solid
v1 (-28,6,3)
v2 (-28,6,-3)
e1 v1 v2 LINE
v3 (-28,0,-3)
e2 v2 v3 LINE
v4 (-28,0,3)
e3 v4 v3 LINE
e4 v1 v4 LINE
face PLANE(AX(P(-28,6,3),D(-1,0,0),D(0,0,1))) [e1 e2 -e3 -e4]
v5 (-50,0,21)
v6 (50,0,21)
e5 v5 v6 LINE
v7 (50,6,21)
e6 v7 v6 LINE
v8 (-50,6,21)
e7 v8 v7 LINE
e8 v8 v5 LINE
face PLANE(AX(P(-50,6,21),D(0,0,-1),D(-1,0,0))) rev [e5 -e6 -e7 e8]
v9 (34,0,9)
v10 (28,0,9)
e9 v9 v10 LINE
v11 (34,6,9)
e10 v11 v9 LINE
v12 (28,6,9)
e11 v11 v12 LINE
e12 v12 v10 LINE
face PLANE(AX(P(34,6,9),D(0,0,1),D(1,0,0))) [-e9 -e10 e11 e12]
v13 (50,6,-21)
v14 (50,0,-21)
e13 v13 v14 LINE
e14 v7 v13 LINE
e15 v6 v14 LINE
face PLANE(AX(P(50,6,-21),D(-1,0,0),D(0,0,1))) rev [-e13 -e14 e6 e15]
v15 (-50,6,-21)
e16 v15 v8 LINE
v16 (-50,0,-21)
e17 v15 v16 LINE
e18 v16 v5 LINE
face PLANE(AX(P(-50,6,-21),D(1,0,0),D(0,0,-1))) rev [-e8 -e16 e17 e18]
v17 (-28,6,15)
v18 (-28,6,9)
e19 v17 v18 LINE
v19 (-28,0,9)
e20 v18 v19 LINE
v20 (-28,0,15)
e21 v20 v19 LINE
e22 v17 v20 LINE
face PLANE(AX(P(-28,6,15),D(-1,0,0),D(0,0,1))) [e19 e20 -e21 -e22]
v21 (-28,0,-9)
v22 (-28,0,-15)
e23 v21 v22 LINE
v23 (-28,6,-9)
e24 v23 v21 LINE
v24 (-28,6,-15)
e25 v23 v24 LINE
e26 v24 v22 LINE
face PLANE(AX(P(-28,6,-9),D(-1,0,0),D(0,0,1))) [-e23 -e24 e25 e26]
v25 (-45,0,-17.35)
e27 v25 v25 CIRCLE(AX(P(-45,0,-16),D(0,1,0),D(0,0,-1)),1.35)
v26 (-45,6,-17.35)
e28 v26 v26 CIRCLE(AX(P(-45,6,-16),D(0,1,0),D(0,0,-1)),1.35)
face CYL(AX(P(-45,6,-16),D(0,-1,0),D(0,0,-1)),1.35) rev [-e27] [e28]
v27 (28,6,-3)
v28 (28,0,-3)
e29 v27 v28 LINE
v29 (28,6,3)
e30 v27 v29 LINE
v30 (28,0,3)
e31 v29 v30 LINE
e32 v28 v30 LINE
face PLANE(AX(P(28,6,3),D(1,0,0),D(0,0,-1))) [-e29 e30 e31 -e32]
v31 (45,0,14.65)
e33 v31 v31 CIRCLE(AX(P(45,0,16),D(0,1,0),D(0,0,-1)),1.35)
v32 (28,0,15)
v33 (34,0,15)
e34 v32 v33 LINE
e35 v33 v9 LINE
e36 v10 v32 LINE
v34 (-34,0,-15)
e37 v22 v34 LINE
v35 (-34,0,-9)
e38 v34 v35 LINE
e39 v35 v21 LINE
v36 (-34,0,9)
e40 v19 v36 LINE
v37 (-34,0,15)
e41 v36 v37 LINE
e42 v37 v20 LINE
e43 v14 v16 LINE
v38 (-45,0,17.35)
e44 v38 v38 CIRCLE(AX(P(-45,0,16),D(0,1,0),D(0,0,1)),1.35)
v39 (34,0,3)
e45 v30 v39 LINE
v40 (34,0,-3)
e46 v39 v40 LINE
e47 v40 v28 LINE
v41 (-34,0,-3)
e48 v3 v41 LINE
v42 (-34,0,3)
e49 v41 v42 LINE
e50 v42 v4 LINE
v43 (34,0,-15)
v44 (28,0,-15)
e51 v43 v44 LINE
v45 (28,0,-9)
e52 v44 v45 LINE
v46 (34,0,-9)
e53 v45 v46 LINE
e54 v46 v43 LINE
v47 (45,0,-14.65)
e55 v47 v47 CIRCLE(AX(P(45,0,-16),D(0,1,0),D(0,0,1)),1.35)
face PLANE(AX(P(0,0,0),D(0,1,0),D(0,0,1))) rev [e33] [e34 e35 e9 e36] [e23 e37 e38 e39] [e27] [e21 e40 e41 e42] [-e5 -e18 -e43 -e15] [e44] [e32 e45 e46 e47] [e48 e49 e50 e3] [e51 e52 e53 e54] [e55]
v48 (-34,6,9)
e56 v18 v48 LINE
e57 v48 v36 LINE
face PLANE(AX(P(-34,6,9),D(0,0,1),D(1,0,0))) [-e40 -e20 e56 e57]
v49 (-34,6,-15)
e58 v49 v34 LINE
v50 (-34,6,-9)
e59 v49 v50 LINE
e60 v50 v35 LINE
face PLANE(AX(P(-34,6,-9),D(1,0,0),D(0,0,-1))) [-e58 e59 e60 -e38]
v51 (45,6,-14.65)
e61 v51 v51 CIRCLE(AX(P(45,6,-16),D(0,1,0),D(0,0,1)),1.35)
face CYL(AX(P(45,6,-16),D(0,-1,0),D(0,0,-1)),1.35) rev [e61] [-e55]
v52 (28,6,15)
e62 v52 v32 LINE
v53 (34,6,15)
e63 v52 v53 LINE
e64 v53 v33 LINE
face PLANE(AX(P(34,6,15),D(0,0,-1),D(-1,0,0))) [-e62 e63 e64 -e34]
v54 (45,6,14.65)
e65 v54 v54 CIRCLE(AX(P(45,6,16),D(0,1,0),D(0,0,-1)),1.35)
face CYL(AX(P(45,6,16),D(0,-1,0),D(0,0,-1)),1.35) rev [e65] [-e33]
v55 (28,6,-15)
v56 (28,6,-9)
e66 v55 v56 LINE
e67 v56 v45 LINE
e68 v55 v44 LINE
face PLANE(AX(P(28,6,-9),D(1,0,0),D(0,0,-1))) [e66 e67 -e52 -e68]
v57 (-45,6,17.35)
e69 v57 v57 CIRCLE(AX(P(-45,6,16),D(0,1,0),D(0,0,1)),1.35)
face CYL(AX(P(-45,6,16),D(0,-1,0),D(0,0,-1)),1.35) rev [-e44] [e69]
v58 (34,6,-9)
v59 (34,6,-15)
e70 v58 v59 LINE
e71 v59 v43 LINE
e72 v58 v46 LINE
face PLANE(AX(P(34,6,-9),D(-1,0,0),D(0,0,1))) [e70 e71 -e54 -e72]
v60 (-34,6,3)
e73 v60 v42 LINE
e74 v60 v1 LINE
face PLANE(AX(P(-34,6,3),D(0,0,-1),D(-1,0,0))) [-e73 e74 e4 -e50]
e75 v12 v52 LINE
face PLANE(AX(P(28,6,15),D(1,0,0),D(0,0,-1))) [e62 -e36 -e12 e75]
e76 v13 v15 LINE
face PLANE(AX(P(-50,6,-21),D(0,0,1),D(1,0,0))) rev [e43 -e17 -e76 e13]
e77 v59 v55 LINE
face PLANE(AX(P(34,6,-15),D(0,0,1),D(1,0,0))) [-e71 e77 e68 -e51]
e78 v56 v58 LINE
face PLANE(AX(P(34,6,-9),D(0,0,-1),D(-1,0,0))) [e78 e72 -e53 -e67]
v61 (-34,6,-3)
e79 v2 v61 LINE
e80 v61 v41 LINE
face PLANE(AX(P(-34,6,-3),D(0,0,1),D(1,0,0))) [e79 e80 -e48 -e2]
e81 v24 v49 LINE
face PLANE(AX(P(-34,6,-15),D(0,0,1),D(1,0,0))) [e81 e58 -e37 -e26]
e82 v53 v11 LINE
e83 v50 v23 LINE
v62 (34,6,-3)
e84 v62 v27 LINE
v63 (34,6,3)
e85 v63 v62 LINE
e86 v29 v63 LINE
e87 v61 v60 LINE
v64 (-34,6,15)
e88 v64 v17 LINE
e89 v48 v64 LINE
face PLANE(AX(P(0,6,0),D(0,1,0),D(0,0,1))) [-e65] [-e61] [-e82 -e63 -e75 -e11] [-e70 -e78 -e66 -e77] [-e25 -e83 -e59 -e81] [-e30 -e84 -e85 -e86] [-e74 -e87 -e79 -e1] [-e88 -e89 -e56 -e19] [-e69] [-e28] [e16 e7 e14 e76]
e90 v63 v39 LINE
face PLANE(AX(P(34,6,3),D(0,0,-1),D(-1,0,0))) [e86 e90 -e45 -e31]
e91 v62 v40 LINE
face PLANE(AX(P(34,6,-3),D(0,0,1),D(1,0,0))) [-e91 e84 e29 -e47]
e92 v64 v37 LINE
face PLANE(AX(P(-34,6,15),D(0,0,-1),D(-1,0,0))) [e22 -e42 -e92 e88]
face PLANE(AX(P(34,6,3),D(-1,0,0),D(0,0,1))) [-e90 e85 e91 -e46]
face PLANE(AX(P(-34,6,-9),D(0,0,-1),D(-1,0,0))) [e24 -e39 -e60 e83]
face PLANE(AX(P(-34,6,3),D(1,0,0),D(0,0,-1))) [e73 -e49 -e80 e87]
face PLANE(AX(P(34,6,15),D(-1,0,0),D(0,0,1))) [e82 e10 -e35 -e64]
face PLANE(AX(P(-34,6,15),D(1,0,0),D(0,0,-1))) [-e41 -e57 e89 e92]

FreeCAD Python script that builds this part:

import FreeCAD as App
import Part
import Sketcher
Q = App.Units.Quantity


def add_polygon(sketch, points):
    """Adds a closed chain of lines whose ends are joined by coincident constraints."""
    first, n = sketch.GeometryCount, len(points)
    for a, b in zip(points, points[1:] + points[:1]):
        sketch.addGeometry(Part.LineSegment(App.Vector(*a, 0), App.Vector(*b, 0)), False)
    for i in range(n):
        sketch.addConstraint(Sketcher.Constraint("Coincident", first + i, 2, first + (i + 1) % n, 1))

doc = App.newDocument("Part")
params = doc.addObject("Spreadsheet::Sheet", "Params")
for row, (alias, value) in enumerate([
    ("sketch1_diameter", "2.7 mm"),
    ("sketch1_width", "100 mm"),
    ("sketch1_width2", "6 mm"),
    ("sketch1_height", "42 mm"),
    ("pad1_length", "6 mm"),
], start=1):
    params.set(f"A{row}", alias)
    params.set(f"B{row}", "=" + value)
    params.setAlias(f"B{row}", alias)

body = doc.addObject("PartDesign::Body", "Body")

sketch1 = body.newObject("Sketcher::SketchObject", "Sketch")
sketch1.AttachmentSupport = (doc.getObject("XZ_Plane"), [""])
sketch1.MapMode = "FlatFace"
add_polygon(sketch1, [(-50, -21), (-50, 21), (50, 21), (50, -21)])
sketch1.addGeometry(Part.Circle(App.Vector(-45, 16, 0), App.Vector(0, 0, 1), 1.4), False)
add_polygon(sketch1, [(-28, 15), (-34, 15), (-34, 9), (-28, 9)])
sketch1.addGeometry(Part.Circle(App.Vector(45, 16, 0), App.Vector(0, 0, 1), 1.4), False)
add_polygon(sketch1, [(34, 15), (28, 15), (28, 9), (34, 9)])
add_polygon(sketch1, [(-28, 3), (-34, 3), (-34, -3), (-28, -3)])
add_polygon(sketch1, [(-28, -9), (-34, -9), (-34, -15), (-28, -15)])
sketch1.addGeometry(Part.Circle(App.Vector(-45, -16, 0), App.Vector(0, 0, 1), 1.4), False)
add_polygon(sketch1, [(34, 3), (28, 3), (28, -3), (34, -3)])
add_polygon(sketch1, [(34, -9), (28, -9), (28, -15), (34, -15)])
sketch1.addGeometry(Part.Circle(App.Vector(45, -16, 0), App.Vector(0, 0, 1), 1.4), False)
sketch1.addConstraint(Sketcher.Constraint("Vertical", 0))
sketch1.addConstraint(Sketcher.Constraint("Horizontal", 1))
sketch1.addConstraint(Sketcher.Constraint("Vertical", 2))
sketch1.addConstraint(Sketcher.Constraint("Horizontal", 3))
sketch1.addConstraint(Sketcher.Constraint("Horizontal", 5))
sketch1.addConstraint(Sketcher.Constraint("Vertical", 6))
sketch1.addConstraint(Sketcher.Constraint("Horizontal", 7))
sketch1.addConstraint(Sketcher.Constraint("Vertical", 8))
sketch1.addConstraint(Sketcher.Constraint("Horizontal", 10))
sketch1.addConstraint(Sketcher.Constraint("Vertical", 11))
sketch1.addConstraint(Sketcher.Constraint("Horizontal", 12))
sketch1.addConstraint(Sketcher.Constraint("Vertical", 13))
sketch1.addConstraint(Sketcher.Constraint("Horizontal", 14))
sketch1.addConstraint(Sketcher.Constraint("Vertical", 15))
sketch1.addConstraint(Sketcher.Constraint("Horizontal", 16))
sketch1.addConstraint(Sketcher.Constraint("Vertical", 17))
sketch1.addConstraint(Sketcher.Constraint("Horizontal", 18))
sketch1.addConstraint(Sketcher.Constraint("Vertical", 19))
sketch1.addConstraint(Sketcher.Constraint("Horizontal", 20))
sketch1.addConstraint(Sketcher.Constraint("Vertical", 21))
sketch1.addConstraint(Sketcher.Constraint("Horizontal", 23))
sketch1.addConstraint(Sketcher.Constraint("Vertical", 24))
sketch1.addConstraint(Sketcher.Constraint("Horizontal", 25))
sketch1.addConstraint(Sketcher.Constraint("Vertical", 26))
sketch1.addConstraint(Sketcher.Constraint("Horizontal", 27))
sketch1.addConstraint(Sketcher.Constraint("Vertical", 28))
sketch1.addConstraint(Sketcher.Constraint("Horizontal", 29))
sketch1.addConstraint(Sketcher.Constraint("Vertical", 30))
sketch1.addConstraint(Sketcher.Constraint("Equal", 4, 9))
sketch1.addConstraint(Sketcher.Constraint("Equal", 9, 22))
sketch1.addConstraint(Sketcher.Constraint("Equal", 22, 31))
sketch1.addConstraint(Sketcher.Constraint("Symmetric", 9, 3, 22, 3, -1, 1))
sketch1.addConstraint(Sketcher.Constraint("Symmetric", 4, 3, 31, 3, -1, 1))
sketch1.addConstraint(Sketcher.Constraint("Symmetric", 0, 2, 2, 2, -1, 1))
sketch1.addConstraint(Sketcher.Constraint("Symmetric", 12, 2, 18, 2, -1, 1))
sketch1.addConstraint(Sketcher.Constraint("Symmetric", 10, 2, 20, 2, -1, 1))
sketch1.addConstraint(Sketcher.Constraint("Symmetric", 16, 2, 23, 2, -1, 1))
sketch1.addConstraint(Sketcher.Constraint("Symmetric", 14, 2, 25, 2, -1, 1))
sketch1.addConstraint(Sketcher.Constraint("Symmetric", 7, 2, 27, 2, -1, 1))
sketch1.addConstraint(Sketcher.Constraint("Symmetric", 5, 2, 29, 2, -1, 1))
sketch1.addConstraint(Sketcher.Constraint("Symmetric", 4, 3, 9, 3, -2))
sketch1.addConstraint(Sketcher.Constraint("Symmetric", 8, 2, 10, 2, -2))
sketch1.addConstraint(Sketcher.Constraint("Symmetric", 6, 2, 12, 2, -2))
sketch1.addConstraint(Sketcher.Constraint("Horizontal", 17, 2, 23, 2))
sketch1.addConstraint(Sketcher.Constraint("Vertical", 6, 2, 14, 2))
sketch1.addConstraint(Sketcher.Constraint("Vertical", 8, 2, 16, 2))
sketch1.addConstraint(Sketcher.Constraint("Equal", 29, 6))
sketch1.addConstraint(Sketcher.Constraint("Equal", 13, 15))
sketch1.addConstraint(Sketcher.Constraint("Diameter", 4, Q("2.7 mm")))
sketch1.addConstraint(Sketcher.Constraint("DistanceX", 1, 1, 1, 2, Q("100 mm")))
sketch1.addConstraint(Sketcher.Constraint("DistanceX", 5, 2, 5, 1, Q("6 mm")))
sketch1.addConstraint(Sketcher.Constraint("DistanceY", 0, 1, 0, 2, Q("42 mm")))
sketch1.addConstraint(Sketcher.Constraint("DistanceX", 4, 3, -1, 1, Q("45 mm")))
sketch1.addConstraint(Sketcher.Constraint("DistanceY", -1, 1, 4, 3, Q("16 mm")))
sketch1.addConstraint(Sketcher.Constraint("DistanceX", 5, 2, -1, 1, Q("34 mm")))
sketch1.addConstraint(Sketcher.Constraint("DistanceY", -1, 1, 5, 2, Q("15 mm")))
sketch1.setExpression("Constraints[76]", "Params.sketch1_diameter")
sketch1.setExpression("Constraints[77]", "Params.sketch1_width")
sketch1.setExpression("Constraints[78]", "Params.sketch1_width2")
sketch1.setExpression("Constraints[79]", "Params.sketch1_height")
pad1 = body.newObject("PartDesign::Pad", "Pad")
pad1.Profile = sketch1
pad1.setExpression("Length", "Params.pad1_length")
pad1.Reversed = True

doc.recompute()
